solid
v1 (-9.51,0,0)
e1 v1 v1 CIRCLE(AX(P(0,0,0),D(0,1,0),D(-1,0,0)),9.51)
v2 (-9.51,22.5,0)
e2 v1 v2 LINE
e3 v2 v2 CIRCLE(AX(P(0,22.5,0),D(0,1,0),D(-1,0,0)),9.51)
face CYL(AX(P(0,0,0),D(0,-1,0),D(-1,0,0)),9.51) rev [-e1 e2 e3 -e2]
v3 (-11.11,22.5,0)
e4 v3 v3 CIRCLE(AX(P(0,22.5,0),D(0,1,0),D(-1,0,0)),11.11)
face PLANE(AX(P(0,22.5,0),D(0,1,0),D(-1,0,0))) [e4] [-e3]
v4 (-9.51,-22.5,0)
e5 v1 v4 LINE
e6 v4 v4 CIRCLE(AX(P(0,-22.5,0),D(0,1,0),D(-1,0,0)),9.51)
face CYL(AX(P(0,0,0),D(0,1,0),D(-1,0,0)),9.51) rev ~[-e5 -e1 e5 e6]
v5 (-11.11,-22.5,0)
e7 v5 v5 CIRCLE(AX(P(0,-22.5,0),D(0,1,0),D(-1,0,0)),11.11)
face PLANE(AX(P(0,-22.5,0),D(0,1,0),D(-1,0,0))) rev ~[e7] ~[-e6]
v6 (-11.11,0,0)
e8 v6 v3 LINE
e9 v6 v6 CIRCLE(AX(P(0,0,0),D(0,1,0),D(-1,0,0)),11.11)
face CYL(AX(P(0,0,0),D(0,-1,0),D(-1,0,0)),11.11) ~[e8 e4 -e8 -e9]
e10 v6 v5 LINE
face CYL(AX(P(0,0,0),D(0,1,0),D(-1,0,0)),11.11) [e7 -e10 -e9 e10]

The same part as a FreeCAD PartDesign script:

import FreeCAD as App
import Part
import Sketcher
from FreeCAD import Vector

doc = App.newDocument("Part")
params = doc.addObject("Spreadsheet::Sheet", "Params")
for row, (alias, value) in enumerate([
    ("sketch1_diameter", "22.22 mm"),
    ("sketch1_diameter2", "19.02 mm"),
    ("pad1_length", "45 mm"),
], start=1):
    params.set(f"A{row}", alias)
    params.set(f"B{row}", "=" + value)
    params.setAlias(f"B{row}", alias)

body = doc.addObject("PartDesign::Body", "Body")

# Sketch on XZ plane
sketch1 = body.newObject("Sketcher::SketchObject", "Sketch")
sketch1.AttachmentSupport = (doc.getObject("XZ_Plane"), [""])
sketch1.MapMode = "FlatFace"
sketch1.addGeometry([
    Part.Circle(Vector(0, 0, 0), Vector(0, 0, 1), 11),
    Part.Circle(Vector(0, 0, 0), Vector(0, 0, 1), 10),
], False)
sketch1.addConstraint([
    Sketcher.Constraint("Coincident", 0, 3, -1, 1),
    Sketcher.Constraint("Coincident", 1, 3, -1, 1),
    Sketcher.Constraint("Diameter", 0, 22.22),
    Sketcher.Constraint("Diameter", 1, 19.02),
])
sketch1.setExpression("Constraints[2]", "Params.sketch1_diameter")
sketch1.setExpression("Constraints[3]", "Params.sketch1_diameter2")
pad1 = body.newObject("PartDesign::Pad", "Pad")
pad1.Profile = sketch1
pad1.setExpression("Length", "Params.pad1_length")
pad1.Midplane = True

doc.recompute()
